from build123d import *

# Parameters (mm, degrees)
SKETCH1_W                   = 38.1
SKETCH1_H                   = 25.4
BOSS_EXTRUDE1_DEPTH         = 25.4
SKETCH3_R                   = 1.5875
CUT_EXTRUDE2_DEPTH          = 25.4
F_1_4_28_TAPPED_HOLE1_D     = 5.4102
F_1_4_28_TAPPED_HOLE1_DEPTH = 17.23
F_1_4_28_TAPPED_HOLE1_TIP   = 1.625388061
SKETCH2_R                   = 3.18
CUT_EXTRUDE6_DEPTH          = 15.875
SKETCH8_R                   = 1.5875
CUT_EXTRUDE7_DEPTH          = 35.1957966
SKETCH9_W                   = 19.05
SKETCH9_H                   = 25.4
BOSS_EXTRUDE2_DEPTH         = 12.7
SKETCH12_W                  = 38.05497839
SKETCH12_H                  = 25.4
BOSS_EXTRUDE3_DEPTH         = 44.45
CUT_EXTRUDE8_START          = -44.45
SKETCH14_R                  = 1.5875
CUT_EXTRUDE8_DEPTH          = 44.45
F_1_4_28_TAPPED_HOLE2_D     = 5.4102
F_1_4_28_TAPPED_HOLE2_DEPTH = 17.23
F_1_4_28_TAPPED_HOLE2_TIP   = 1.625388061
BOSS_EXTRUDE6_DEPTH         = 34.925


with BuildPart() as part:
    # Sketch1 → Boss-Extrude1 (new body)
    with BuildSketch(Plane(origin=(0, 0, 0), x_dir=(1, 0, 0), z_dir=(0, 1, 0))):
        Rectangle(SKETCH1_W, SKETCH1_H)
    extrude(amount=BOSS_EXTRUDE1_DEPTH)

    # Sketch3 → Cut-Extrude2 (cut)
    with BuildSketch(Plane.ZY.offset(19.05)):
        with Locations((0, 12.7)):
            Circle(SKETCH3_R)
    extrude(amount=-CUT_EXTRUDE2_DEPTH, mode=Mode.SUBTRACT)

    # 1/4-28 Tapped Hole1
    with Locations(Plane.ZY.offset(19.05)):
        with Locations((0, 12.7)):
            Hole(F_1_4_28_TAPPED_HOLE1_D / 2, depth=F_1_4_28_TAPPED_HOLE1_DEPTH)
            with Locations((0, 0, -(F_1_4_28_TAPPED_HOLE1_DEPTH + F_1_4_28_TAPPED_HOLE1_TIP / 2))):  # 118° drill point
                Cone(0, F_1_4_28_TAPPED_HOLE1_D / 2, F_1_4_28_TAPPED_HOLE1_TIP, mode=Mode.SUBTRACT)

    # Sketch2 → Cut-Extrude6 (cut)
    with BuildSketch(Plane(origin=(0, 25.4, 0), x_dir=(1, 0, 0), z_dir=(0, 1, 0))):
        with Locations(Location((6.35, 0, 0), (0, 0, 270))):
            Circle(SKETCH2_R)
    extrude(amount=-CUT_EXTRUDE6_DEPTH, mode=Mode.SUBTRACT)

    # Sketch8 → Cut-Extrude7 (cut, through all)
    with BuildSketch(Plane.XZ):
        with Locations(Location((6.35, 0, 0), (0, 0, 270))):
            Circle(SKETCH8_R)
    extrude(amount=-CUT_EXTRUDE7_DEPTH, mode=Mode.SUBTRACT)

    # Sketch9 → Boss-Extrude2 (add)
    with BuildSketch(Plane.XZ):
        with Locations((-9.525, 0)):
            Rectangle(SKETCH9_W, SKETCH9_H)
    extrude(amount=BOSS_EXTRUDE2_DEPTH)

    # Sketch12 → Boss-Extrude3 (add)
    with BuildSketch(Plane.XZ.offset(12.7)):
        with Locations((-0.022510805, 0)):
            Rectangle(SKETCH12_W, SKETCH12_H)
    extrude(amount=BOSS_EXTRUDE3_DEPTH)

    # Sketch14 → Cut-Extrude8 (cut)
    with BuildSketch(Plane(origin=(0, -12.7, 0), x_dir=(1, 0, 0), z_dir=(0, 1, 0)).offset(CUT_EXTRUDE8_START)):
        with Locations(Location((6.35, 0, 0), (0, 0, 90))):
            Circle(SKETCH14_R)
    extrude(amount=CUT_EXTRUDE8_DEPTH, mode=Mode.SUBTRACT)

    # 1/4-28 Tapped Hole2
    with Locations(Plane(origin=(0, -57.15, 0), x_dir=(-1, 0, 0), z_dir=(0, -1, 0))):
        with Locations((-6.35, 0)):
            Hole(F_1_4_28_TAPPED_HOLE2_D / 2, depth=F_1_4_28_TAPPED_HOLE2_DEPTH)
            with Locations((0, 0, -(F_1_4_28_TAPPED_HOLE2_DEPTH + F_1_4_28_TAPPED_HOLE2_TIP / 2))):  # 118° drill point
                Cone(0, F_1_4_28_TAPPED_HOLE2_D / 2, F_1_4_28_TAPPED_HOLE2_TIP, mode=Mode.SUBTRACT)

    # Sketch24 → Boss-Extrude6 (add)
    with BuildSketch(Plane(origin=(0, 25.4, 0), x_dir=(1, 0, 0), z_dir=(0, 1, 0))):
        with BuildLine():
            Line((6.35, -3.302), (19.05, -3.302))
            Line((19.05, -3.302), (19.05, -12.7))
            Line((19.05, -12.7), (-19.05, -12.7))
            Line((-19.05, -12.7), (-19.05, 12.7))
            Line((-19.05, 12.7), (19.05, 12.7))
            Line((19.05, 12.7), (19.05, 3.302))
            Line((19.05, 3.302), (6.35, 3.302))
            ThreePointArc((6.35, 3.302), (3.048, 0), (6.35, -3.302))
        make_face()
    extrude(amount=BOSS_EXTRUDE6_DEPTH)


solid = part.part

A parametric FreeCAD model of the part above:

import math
import FreeCAD as App
import Part
import Sketcher

V = App.Vector
Q = App.Units.Quantity

doc = App.newDocument("Part")
body = doc.addObject("PartDesign::Body", "Body")

# Sketch on XZ plane
sketch1 = doc.addObject("Sketcher::SketchObject", "Sketch")
body.addObject(sketch1)
sketch1.AttachmentSupport = (doc.XZ_Plane, [""])
sketch1.MapMode = "FlatFace"
sketch1.addGeometry([
    Part.LineSegment(V(-19, -13, 0), V(-19, 13, 0)),
    Part.LineSegment(V(-19, 13, 0), V(19, 13, 0)),
    Part.LineSegment(V(19, 13, 0), V(19, -13, 0)),
    Part.LineSegment(V(19, -13, 0), V(-19, -13, 0)),
], False)
sketch1.addConstraint([
    Sketcher.Constraint("Coincident", 0, 2, 1, 1),
    Sketcher.Constraint("Coincident", 1, 2, 2, 1),
    Sketcher.Constraint("Coincident", 2, 2, 3, 1),
    Sketcher.Constraint("Coincident", 3, 2, 0, 1),
    Sketcher.Constraint("Vertical", 0),
    Sketcher.Constraint("Horizontal", 1),
    Sketcher.Constraint("Vertical", 2),
    Sketcher.Constraint("Horizontal", 3),
    Sketcher.Constraint("Symmetric", 0, 2, 2, 2, -1, 1),
    Sketcher.Constraint("DistanceY", 0, 1, 0, 2, Q("1 in")),
    Sketcher.Constraint("DistanceX", 1, 1, 1, 2, Q("1.5 in")),
])
pad1 = doc.addObject("PartDesign::Pad", "Pad")
body.addObject(pad1)
pad1.Profile = sketch1
pad1.Length = Q("1 in")
pad1.Reversed = True

# Sketch on YZ plane
sketch2 = doc.addObject("Sketcher::SketchObject", "Sketch001")
body.addObject(sketch2)
sketch2.AttachmentSupport = (doc.YZ_Plane, [""])
sketch2.MapMode = "FlatFace"
sketch2.AttachmentOffset = App.Placement(V(0, 0, -0.75 * 25.4), App.Rotation())
sketch2.addGeometry(Part.Circle(V(12.7, 0, 0), V(0, 0, 1), 1.6), False)
sketch2.addConstraint([
    Sketcher.Constraint("PointOnObject", 0, 3, -1),
    Sketcher.Constraint("Diameter", 0, Q("0.125 in")),
    Sketcher.Constraint("DistanceX", -1, 1, 0, 3, Q("0.5 in")),
])
pocket1 = doc.addObject("PartDesign::Pocket", "Pocket")
body.addObject(pocket1)
pocket1.Profile = sketch2
pocket1.Length = Q("1 in")
pocket1.Reversed = True

# Sketch on YZ plane
sketch3 = doc.addObject("Sketcher::SketchObject", "Sketch002")
body.addObject(sketch3)
sketch3.AttachmentSupport = (doc.YZ_Plane, [""])
sketch3.MapMode = "FlatFace"
sketch3.AttachmentOffset = App.Placement(V(0, 0, -0.75 * 25.4), App.Rotation())
sketch3.addGeometry(Part.Circle(V(12.7, 0, 0), V(0, 0, 1), 2.7), False)
sketch3.addConstraint([
    Sketcher.Constraint("PointOnObject", 0, 3, -1),
    Sketcher.Constraint("Diameter", 0, Q("0.213 in")),
    Sketcher.Constraint("DistanceX", -1, 1, 0, 3, Q("0.5 in")),
])
doc.recompute()
hole = doc.addObject("PartDesign::Hole", "Hole")
body.addObject(hole)
hole.Profile = sketch3
hole.ThreadType = "None"
hole.Diameter = Q("0.213 in")
hole.DepthType = "Dimension"
hole.Depth = 17.23
hole.DrillPoint = "Angled"
hole.DrillPointAngle = 118
hole.Reversed = True

# Sketch on XZ plane
sketch4 = doc.addObject("Sketcher::SketchObject", "Sketch003")
body.addObject(sketch4)
sketch4.AttachmentSupport = (doc.XZ_Plane, [""])
sketch4.MapMode = "FlatFace"
sketch4.AttachmentOffset = App.Placement(V(0, 0, -1 * 25.4), App.Rotation())
sketch4.addGeometry(Part.Circle(V(6.3, 0, 0), V(0, 0, 1), 3.2), False)
sketch4.addConstraint([
    Sketcher.Constraint("PointOnObject", 0, 3, -1),
    Sketcher.Constraint("Diameter", 0, Q("6.36 mm")),
    Sketcher.Constraint("DistanceX", -1, 1, 0, 3, Q("0.25 in")),
])
pocket2 = doc.addObject("PartDesign::Pocket", "Pocket001")
body.addObject(pocket2)
pocket2.Profile = sketch4
pocket2.Length = Q("0.625 in")
pocket2.Reversed = True

# Sketch on XZ plane
sketch5 = doc.addObject("Sketcher::SketchObject", "Sketch004")
body.addObject(sketch5)
sketch5.AttachmentSupport = (doc.XZ_Plane, [""])
sketch5.MapMode = "FlatFace"
sketch5.addGeometry(Part.Circle(V(6.3, 0, 0), V(0, 0, 1), 1.6), False)
sketch5.addConstraint([
    Sketcher.Constraint("PointOnObject", 0, 3, -1),
    Sketcher.Constraint("Diameter", 0, Q("0.125 in")),
    Sketcher.Constraint("DistanceX", -1, 1, 0, 3, Q("0.25 in")),
])
pocket3 = doc.addObject("PartDesign::Pocket", "Pocket002")
body.addObject(pocket3)
pocket3.Profile = sketch5
pocket3.Type = "ThroughAll"

# Sketch on XZ plane
sketch6 = doc.addObject("Sketcher::SketchObject", "Sketch005")
body.addObject(sketch6)
sketch6.AttachmentSupport = (doc.XZ_Plane, [""])
sketch6.MapMode = "FlatFace"
sketch6.addGeometry([
    Part.LineSegment(V(-19, 13, 0), V(-19, -13, 0)),
    Part.LineSegment(V(-19, -13, 0), V(0, -13, 0)),
    Part.LineSegment(V(0, -13, 0), V(0, 13, 0)),
    Part.LineSegment(V(0, 13, 0), V(-19, 13, 0)),
], False)
sketch6.addConstraint([
    Sketcher.Constraint("Coincident", 0, 2, 1, 1),
    Sketcher.Constraint("Coincident", 1, 2, 2, 1),
    Sketcher.Constraint("Coincident", 2, 2, 3, 1),
    Sketcher.Constraint("Coincident", 3, 2, 0, 1),
    Sketcher.Constraint("Vertical", 0),
    Sketcher.Constraint("Horizontal", 1),
    Sketcher.Constraint("Vertical", 2),
    Sketcher.Constraint("Horizontal", 3),
    Sketcher.Constraint("Symmetric", 1, 2, 2, 2, -1, 1),
    Sketcher.Constraint("DistanceY", 0, 2, 0, 1, Q("1 in")),
    Sketcher.Constraint("DistanceX", 1, 1, 1, 2, Q("0.75 in")),
])
pad2 = doc.addObject("PartDesign::Pad", "Pad001")
body.addObject(pad2)
pad2.Profile = sketch6
pad2.Length = Q("0.5 in")

# Sketch on XZ plane
sketch7 = doc.addObject("Sketcher::SketchObject", "Sketch006")
body.addObject(sketch7)
sketch7.AttachmentSupport = (doc.XZ_Plane, [""])
sketch7.MapMode = "FlatFace"
sketch7.AttachmentOffset = App.Placement(V(0, 0, 0.5 * 25.4), App.Rotation())
sketch7.addGeometry([
    Part.LineSegment(V(-19, 13, 0), V(-19, -13, 0)),
    Part.LineSegment(V(-19, -13, 0), V(19, -13, 0)),
    Part.LineSegment(V(19, -13, 0), V(19, 13, 0)),
    Part.LineSegment(V(19, 13, 0), V(-19, 13, 0)),
], False)
sketch7.addConstraint([
    Sketcher.Constraint("Coincident", 0, 2, 1, 1),
    Sketcher.Constraint("Coincident", 1, 2, 2, 1),
    Sketcher.Constraint("Coincident", 2, 2, 3, 1),
    Sketcher.Constraint("Coincident", 3, 2, 0, 1),
    Sketcher.Constraint("Vertical", 0),
    Sketcher.Constraint("Horizontal", 1),
    Sketcher.Constraint("Vertical", 2),
    Sketcher.Constraint("Horizontal", 3),
    Sketcher.Constraint("DistanceY", 0, 2, 0, 1, Q("1 in")),
    Sketcher.Constraint("DistanceY", 0, 2, -1, 1, Q("0.5 in")),
    Sketcher.Constraint("DistanceX", 0, 2, -1, 1, Q("0.75 in")),
    Sketcher.Constraint("DistanceX", 1, 1, 1, 2, Q("38.054978 mm")),
])
pad3 = doc.addObject("PartDesign::Pad", "Pad002")
body.addObject(pad3)
pad3.Profile = sketch7
pad3.Length = Q("1.75 in")

# Sketch on XZ plane
sketch8 = doc.addObject("Sketcher::SketchObject", "Sketch007")
body.addObject(sketch8)
sketch8.AttachmentSupport = (doc.XZ_Plane, [""])
sketch8.MapMode = "FlatFace"
sketch8.AttachmentOffset = App.Placement(V(0, 0, 2.25 * 25.4), App.Rotation())
sketch8.addGeometry(Part.Circle(V(6.3, 0, 0), V(0, 0, 1), 1.6), False)
sketch8.addConstraint([
    Sketcher.Constraint("PointOnObject", 0, 3, -1),
    Sketcher.Constraint("Diameter", 0, Q("0.125 in")),
    Sketcher.Constraint("DistanceX", -1, 1, 0, 3, Q("0.25 in")),
])
pocket4 = doc.addObject("PartDesign::Pocket", "Pocket003")
body.addObject(pocket4)
pocket4.Profile = sketch8
pocket4.Length = Q("1.75 in")

# Sketch on XZ plane
sketch9 = doc.addObject("Sketcher::SketchObject", "Sketch008")
body.addObject(sketch9)
sketch9.AttachmentSupport = (doc.XZ_Plane, [""])
sketch9.MapMode = "FlatFace"
sketch9.AttachmentOffset = App.Placement(V(0, 0, 2.25 * 25.4), App.Rotation())
sketch9.addGeometry(Part.Circle(V(6.3, 0, 0), V(0, 0, 1), 2.7), False)
sketch9.addConstraint([
    Sketcher.Constraint("PointOnObject", 0, 3, -1),
    Sketcher.Constraint("Diameter", 0, Q("0.213 in")),
    Sketcher.Constraint("DistanceX", -1, 1, 0, 3, Q("0.25 in")),
])
doc.recompute()
hole2 = doc.addObject("PartDesign::Hole", "Hole001")
body.addObject(hole2)
hole2.Profile = sketch9
hole2.ThreadType = "None"
hole2.Diameter = Q("0.213 in")
hole2.DepthType = "Dimension"
hole2.Depth = 17.23
hole2.DrillPoint = "Angled"
hole2.DrillPointAngle = 118

# Sketch on XZ plane
sketch10 = doc.addObject("Sketcher::SketchObject", "Sketch009")
body.addObject(sketch10)
sketch10.AttachmentSupport = (doc.XZ_Plane, [""])
sketch10.MapMode = "FlatFace"
sketch10.AttachmentOffset = App.Placement(V(0, 0, -1 * 25.4), App.Rotation())
sketch10.addGeometry([
    Part.LineSegment(V(19.1, 3.3, 0), V(6.3, 3.3, 0)),  # 0
    Part.ArcOfCircle(Part.Circle(V(6.3, 0, 0), V(0, 0, 1), 3.3), math.radians(90), math.radians(270)),  # 1
    Part.LineSegment(V(6.3, -3.3, 0), V(19.1, -3.3, 0)),  # 2
    Part.LineSegment(V(19.1, -3.3, 0), V(19.1, -12.7, 0)),  # 3
    Part.LineSegment(V(19.1, -12.7, 0), V(-19.1, -12.7, 0)),  # 4
    Part.LineSegment(V(-19.1, -12.7, 0), V(-19.1, 12.7, 0)),  # 5
    Part.LineSegment(V(-19.1, 12.7, 0), V(19.1, 12.7, 0)),  # 6
    Part.LineSegment(V(19.1, 12.7, 0), V(19.1, 3.3, 0)),  # 7
], False)
sketch10.addConstraint([
    Sketcher.Constraint("Tangent", 0, 2, 1, 1),
    Sketcher.Constraint("Tangent", 1, 2, 2, 1),
    Sketcher.Constraint("Coincident", 2, 2, 3, 1),
    Sketcher.Constraint("Coincident", 3, 2, 4, 1),
    Sketcher.Constraint("Coincident", 4, 2, 5, 1),
    Sketcher.Constraint("Coincident", 5, 2, 6, 1),
    Sketcher.Constraint("Coincident", 6, 2, 7, 1),
    Sketcher.Constraint("Coincident", 7, 2, 0, 1),
    Sketcher.Constraint("Horizontal", 0),
    Sketcher.Constraint("Horizontal", 2),
    Sketcher.Constraint("Vertical", 3),
    Sketcher.Constraint("Horizontal", 4),
    Sketcher.Constraint("Vertical", 5),
    Sketcher.Constraint("Horizontal", 6),
    Sketcher.Constraint("Vertical", 7),
    Sketcher.Constraint("Symmetric", 3, 2, 5, 2, -1, 1),
    Sketcher.Constraint("Symmetric", 2, 2, 7, 2, -1),
    Sketcher.Constraint("DistanceY", 5, 1, 5, 2, Q("1 in")),
    Sketcher.Constraint("Radius", 1, Q("0.13 in")),
    Sketcher.Constraint("DistanceX", 0, 2, 0, 1, Q("0.5 in")),
    Sketcher.Constraint("DistanceX", 4, 2, 4, 1, Q("1.5 in")),
])
pad4 = doc.addObject("PartDesign::Pad", "Pad003")
body.addObject(pad4)
pad4.Profile = sketch10
pad4.Length = Q("1.375 in")
pad4.Reversed = True

doc.recompute()
